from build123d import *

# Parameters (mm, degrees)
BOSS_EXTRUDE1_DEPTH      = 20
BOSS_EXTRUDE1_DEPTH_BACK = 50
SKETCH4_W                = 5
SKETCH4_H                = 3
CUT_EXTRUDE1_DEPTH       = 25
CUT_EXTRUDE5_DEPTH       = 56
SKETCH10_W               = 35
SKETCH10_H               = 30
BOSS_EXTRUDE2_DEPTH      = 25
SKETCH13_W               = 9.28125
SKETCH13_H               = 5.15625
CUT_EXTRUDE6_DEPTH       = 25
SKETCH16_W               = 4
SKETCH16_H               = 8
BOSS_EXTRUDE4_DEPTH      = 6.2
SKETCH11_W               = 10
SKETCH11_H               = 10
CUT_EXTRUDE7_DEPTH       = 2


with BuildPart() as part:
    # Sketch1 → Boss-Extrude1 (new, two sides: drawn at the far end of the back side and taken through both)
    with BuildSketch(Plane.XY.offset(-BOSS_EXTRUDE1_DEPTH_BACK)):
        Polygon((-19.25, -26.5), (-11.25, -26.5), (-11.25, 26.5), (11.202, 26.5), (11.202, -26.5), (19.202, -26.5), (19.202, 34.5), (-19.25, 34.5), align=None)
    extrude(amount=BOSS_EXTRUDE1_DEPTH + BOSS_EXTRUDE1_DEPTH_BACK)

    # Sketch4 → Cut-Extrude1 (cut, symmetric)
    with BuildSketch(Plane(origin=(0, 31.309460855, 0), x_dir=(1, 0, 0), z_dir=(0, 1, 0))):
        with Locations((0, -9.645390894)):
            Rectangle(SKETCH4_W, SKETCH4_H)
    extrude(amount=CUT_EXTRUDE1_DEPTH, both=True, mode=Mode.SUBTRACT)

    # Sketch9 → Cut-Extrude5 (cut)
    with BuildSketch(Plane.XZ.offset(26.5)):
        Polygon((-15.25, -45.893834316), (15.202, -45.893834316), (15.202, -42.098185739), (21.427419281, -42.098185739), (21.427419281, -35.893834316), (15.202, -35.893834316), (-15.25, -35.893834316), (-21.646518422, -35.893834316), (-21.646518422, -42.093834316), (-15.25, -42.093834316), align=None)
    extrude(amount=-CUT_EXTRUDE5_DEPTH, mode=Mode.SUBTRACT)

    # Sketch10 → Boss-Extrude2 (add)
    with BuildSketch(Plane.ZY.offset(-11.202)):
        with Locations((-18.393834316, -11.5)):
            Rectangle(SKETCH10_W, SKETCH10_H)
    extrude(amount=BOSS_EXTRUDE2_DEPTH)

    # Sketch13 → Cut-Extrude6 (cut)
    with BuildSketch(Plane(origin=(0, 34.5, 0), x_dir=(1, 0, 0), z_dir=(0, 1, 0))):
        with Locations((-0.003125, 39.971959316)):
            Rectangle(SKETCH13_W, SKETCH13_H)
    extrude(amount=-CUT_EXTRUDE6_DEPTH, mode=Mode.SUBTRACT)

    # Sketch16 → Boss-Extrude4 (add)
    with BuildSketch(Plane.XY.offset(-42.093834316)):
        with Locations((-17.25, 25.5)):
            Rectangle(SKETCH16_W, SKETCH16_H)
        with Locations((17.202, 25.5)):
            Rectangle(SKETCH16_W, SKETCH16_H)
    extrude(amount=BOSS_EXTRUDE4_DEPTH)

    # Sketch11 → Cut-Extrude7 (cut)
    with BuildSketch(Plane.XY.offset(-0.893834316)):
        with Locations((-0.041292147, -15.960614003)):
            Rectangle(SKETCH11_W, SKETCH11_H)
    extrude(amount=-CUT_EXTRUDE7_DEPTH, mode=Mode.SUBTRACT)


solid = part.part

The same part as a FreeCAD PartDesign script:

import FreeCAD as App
import Part
import Sketcher

doc = App.newDocument("Part")
body = doc.addObject("PartDesign::Body", "Body")

# Sketch on XY plane
sketch1 = body.newObject("Sketcher::SketchObject", "Sketch")
sketch1.AttachmentSupport = (doc.getObject("XY_Plane"), [""])
sketch1.MapMode = "FlatFace"
sketch1.addGeometry([
    Part.LineSegment(App.Vector(-19.25, -26.5, 0), App.Vector(-11.25, -26.5, 0)),  # 0
    Part.LineSegment(App.Vector(-11.25, -26.5, 0), App.Vector(-11.25, 26.5, 0)),  # 1
    Part.LineSegment(App.Vector(-11.25, 26.5, 0), App.Vector(11.202, 26.5, 0)),  # 2
    Part.LineSegment(App.Vector(11.202, 26.5, 0), App.Vector(11.202, -26.5, 0)),  # 3
    Part.LineSegment(App.Vector(11.202, -26.5, 0), App.Vector(19.202, -26.5, 0)),  # 4
    Part.LineSegment(App.Vector(19.202, -26.5, 0), App.Vector(19.202, 34.5, 0)),  # 5
    Part.LineSegment(App.Vector(19.202, 34.5, 0), App.Vector(-19.25, 34.5, 0)),  # 6
    Part.LineSegment(App.Vector(-19.25, 34.5, 0), App.Vector(-19.25, -26.5, 0)),  # 7
], False)
sketch1.addConstraint([
    Sketcher.Constraint("Coincident", 0, 2, 1, 1),
    Sketcher.Constraint("Coincident", 1, 2, 2, 1),
    Sketcher.Constraint("Coincident", 2, 2, 3, 1),
    Sketcher.Constraint("Coincident", 3, 2, 4, 1),
    Sketcher.Constraint("Coincident", 4, 2, 5, 1),
    Sketcher.Constraint("Coincident", 5, 2, 6, 1),
    Sketcher.Constraint("Coincident", 6, 2, 7, 1),
    Sketcher.Constraint("Coincident", 7, 2, 0, 1),
    Sketcher.Constraint("Horizontal", 0),
    Sketcher.Constraint("Vertical", 1),
    Sketcher.Constraint("Horizontal", 2),
    Sketcher.Constraint("Vertical", 3),
    Sketcher.Constraint("Horizontal", 4),
    Sketcher.Constraint("Vertical", 5),
    Sketcher.Constraint("Horizontal", 6),
    Sketcher.Constraint("Vertical", 7),
    Sketcher.Constraint("Horizontal", 0, 2, 3, 2),
    Sketcher.Constraint("Equal", 0, 4),
    Sketcher.Constraint("DistanceX", 0, 1, 0, 2, 8.0),
    Sketcher.Constraint("DistanceY", 1, 1, 1, 2, 53.0),
    Sketcher.Constraint("DistanceY", 5, 1, 5, 2, 61.0),
    Sketcher.Constraint("DistanceY", 0, 2, -1, 1, 26.5),
    Sketcher.Constraint("DistanceX", 2, 1, 2, 2, 22.452),
    Sketcher.Constraint("DistanceX", 0, 2, -1, 1, 11.25),
])
pad1 = body.newObject("PartDesign::Pad", "Pad")
pad1.Profile = sketch1
pad1.Type = "TwoLengths"
pad1.Length = 20
pad1.Length2 = 50

# Sketch on XZ plane
sketch2 = body.newObject("Sketcher::SketchObject", "Sketch001")
sketch2.AttachmentSupport = (doc.getObject("XZ_Plane"), [""])
sketch2.MapMode = "FlatFace"
sketch2.AttachmentOffset = App.Placement(App.Vector(0, 0, -31.309461), App.Rotation())
sketch2.addGeometry([
    Part.LineSegment(App.Vector(-2.5, 8.145391, 0), App.Vector(-2.5, 11.145391, 0)),
    Part.LineSegment(App.Vector(-2.5, 11.145391, 0), App.Vector(2.5, 11.145391, 0)),
    Part.LineSegment(App.Vector(2.5, 11.145391, 0), App.Vector(2.5, 8.145391, 0)),
    Part.LineSegment(App.Vector(2.5, 8.145391, 0), App.Vector(-2.5, 8.145391, 0)),
], False)
sketch2.addConstraint([
    Sketcher.Constraint("Coincident", 0, 2, 1, 1),
    Sketcher.Constraint("Coincident", 1, 2, 2, 1),
    Sketcher.Constraint("Coincident", 2, 2, 3, 1),
    Sketcher.Constraint("Coincident", 3, 2, 0, 1),
    Sketcher.Constraint("Vertical", 0),
    Sketcher.Constraint("Horizontal", 1),
    Sketcher.Constraint("Vertical", 2),
    Sketcher.Constraint("Horizontal", 3),
    Sketcher.Constraint("DistanceX", 1, 1, 1, 2, 5.0),
    Sketcher.Constraint("DistanceY", 0, 1, 0, 2, 3.0),
    Sketcher.Constraint("DistanceX", 0, 2, -1, 1, 2.5),
    Sketcher.Constraint("DistanceY", -1, 1, 0, 2, 11.145391),
])
pocket1 = body.newObject("PartDesign::Pocket", "Pocket")
pocket1.Profile = sketch2
pocket1.Length = 50
pocket1.Midplane = True

# Sketch on XZ plane
sketch3 = body.newObject("Sketcher::SketchObject", "Sketch002")
sketch3.AttachmentSupport = (doc.getObject("XZ_Plane"), [""])
sketch3.MapMode = "FlatFace"
sketch3.AttachmentOffset = App.Placement(App.Vector(0, 0, 26.5), App.Rotation())
sketch3.addGeometry([
    Part.LineSegment(App.Vector(-15.25, -45.893834, 0), App.Vector(15.202, -45.893834, 0)),  # 0
    Part.LineSegment(App.Vector(15.202, -45.893834, 0), App.Vector(15.202, -42.098186, 0)),  # 1
    Part.LineSegment(App.Vector(15.202, -42.098186, 0), App.Vector(21.427419, -42.098186, 0)),  # 2
    Part.LineSegment(App.Vector(21.427419, -42.098186, 0), App.Vector(21.427419, -35.893834, 0)),  # 3
    Part.LineSegment(App.Vector(21.427419, -35.893834, 0), App.Vector(-21.646518, -35.893834, 0)),  # 4
    Part.LineSegment(App.Vector(-21.646518, -35.893834, 0), App.Vector(-21.646518, -42.093834, 0)),  # 5
    Part.LineSegment(App.Vector(-21.646518, -42.093834, 0), App.Vector(-15.25, -42.093834, 0)),  # 6
    Part.LineSegment(App.Vector(-15.25, -42.093834, 0), App.Vector(-15.25, -45.893834, 0)),  # 7
], False)
sketch3.addConstraint([
    Sketcher.Constraint("Coincident", 0, 2, 1, 1),
    Sketcher.Constraint("Coincident", 1, 2, 2, 1),
    Sketcher.Constraint("Coincident", 2, 2, 3, 1),
    Sketcher.Constraint("Coincident", 3, 2, 4, 1),
    Sketcher.Constraint("Coincident", 4, 2, 5, 1),
    Sketcher.Constraint("Coincident", 5, 2, 6, 1),
    Sketcher.Constraint("Coincident", 6, 2, 7, 1),
    Sketcher.Constraint("Coincident", 7, 2, 0, 1),
    Sketcher.Constraint("Horizontal", 0),
    Sketcher.Constraint("Vertical", 1),
    Sketcher.Constraint("Horizontal", 2),
    Sketcher.Constraint("Vertical", 3),
    Sketcher.Constraint("Horizontal", 4),
    Sketcher.Constraint("Vertical", 5),
    Sketcher.Constraint("Horizontal", 6),
    Sketcher.Constraint("Vertical", 7),
    Sketcher.Constraint("DistanceY", 5, 2, 5, 1, 6.2),
    Sketcher.Constraint("DistanceY", 7, 2, 7, 1, 3.8),
    Sketcher.Constraint("DistanceX", 0, 1, 0, 2, 30.452),
    Sketcher.Constraint("DistanceX", 6, 2, -1, 1, 15.25),
    Sketcher.Constraint("DistanceX", 2, 1, 2, 2, 6.225419),
    Sketcher.Constraint("DistanceX", 6, 1, 6, 2, 6.396518),
    Sketcher.Constraint("DistanceY", 1, 1, 1, 2, 3.795649),
    Sketcher.Constraint("DistanceY", 0, 2, -1, 1, 45.893834),
])
pocket2 = body.newObject("PartDesign::Pocket", "Pocket001")
pocket2.Profile = sketch3
pocket2.Length = 56

# Sketch on YZ plane
sketch4 = body.newObject("Sketcher::SketchObject", "Sketch003")
sketch4.AttachmentSupport = (doc.getObject("YZ_Plane"), [""])
sketch4.MapMode = "FlatFace"
sketch4.AttachmentOffset = App.Placement(App.Vector(0, 0, 11.202), App.Rotation())
sketch4.addGeometry([
    Part.LineSegment(App.Vector(3.5, -35.893834, 0), App.Vector(-26.5, -35.893834, 0)),
    Part.LineSegment(App.Vector(-26.5, -35.893834, 0), App.Vector(-26.5, -0.893834, 0)),
    Part.LineSegment(App.Vector(-26.5, -0.893834, 0), App.Vector(3.5, -0.893834, 0)),
    Part.LineSegment(App.Vector(3.5, -0.893834, 0), App.Vector(3.5, -35.893834, 0)),
], False)
sketch4.addConstraint([
    Sketcher.Constraint("Coincident", 0, 2, 1, 1),
    Sketcher.Constraint("Coincident", 1, 2, 2, 1),
    Sketcher.Constraint("Coincident", 2, 2, 3, 1),
    Sketcher.Constraint("Coincident", 3, 2, 0, 1),
    Sketcher.Constraint("Horizontal", 0),
    Sketcher.Constraint("Vertical", 1),
    Sketcher.Constraint("Horizontal", 2),
    Sketcher.Constraint("Vertical", 3),
    Sketcher.Constraint("DistanceX", 0, 2, 0, 1, 30.0),
    Sketcher.Constraint("DistanceY", 1, 1, 1, 2, 35.0),
    Sketcher.Constraint("DistanceX", 0, 2, -1, 1, 26.5),
    Sketcher.Constraint("DistanceY", 0, 2, -1, 1, 35.893834),
])
pad2 = body.newObject("PartDesign::Pad", "Pad001")
pad2.Profile = sketch4
pad2.Length = 25
pad2.Reversed = True

# Sketch on XZ plane
sketch5 = body.newObject("Sketcher::SketchObject", "Sketch004")
sketch5.AttachmentSupport = (doc.getObject("XZ_Plane"), [""])
sketch5.MapMode = "FlatFace"
sketch5.AttachmentOffset = App.Placement(App.Vector(0, 0, -34.5), App.Rotation())
sketch5.addGeometry([
    Part.LineSegment(App.Vector(-4.64375, -42.550084, 0), App.Vector(-4.64375, -37.393834, 0)),
    Part.LineSegment(App.Vector(-4.64375, -37.393834, 0), App.Vector(4.6375, -37.393834, 0)),
    Part.LineSegment(App.Vector(4.6375, -37.393834, 0), App.Vector(4.6375, -42.550084, 0)),
    Part.LineSegment(App.Vector(4.6375, -42.550084, 0), App.Vector(-4.64375, -42.550084, 0)),
], False)
sketch5.addConstraint([
    Sketcher.Constraint("Coincident", 0, 2, 1, 1),
    Sketcher.Constraint("Coincident", 1, 2, 2, 1),
    Sketcher.Constraint("Coincident", 2, 2, 3, 1),
    Sketcher.Constraint("Coincident", 3, 2, 0, 1),
    Sketcher.Constraint("Vertical", 0),
    Sketcher.Constraint("Horizontal", 1),
    Sketcher.Constraint("Vertical", 2),
    Sketcher.Constraint("Horizontal", 3),
    Sketcher.Constraint("DistanceX", 1, 1, 1, 2, 9.28125),
    Sketcher.Constraint("DistanceY", 0, 1, 0, 2, 5.15625),
    Sketcher.Constraint("DistanceX", -1, 1, 1, 2, 4.6375),
    Sketcher.Constraint("DistanceY", 0, 2, -1, 1, 37.393834),
])
pocket3 = body.newObject("PartDesign::Pocket", "Pocket002")
pocket3.Profile = sketch5
pocket3.Length = 25
pocket3.Reversed = True

# Sketch on XY plane
sketch6 = body.newObject("Sketcher::SketchObject", "Sketch005")
sketch6.AttachmentSupport = (doc.getObject("XY_Plane"), [""])
sketch6.MapMode = "FlatFace"
sketch6.AttachmentOffset = App.Placement(App.Vector(0, 0, -42.093834), App.Rotation())
sketch6.addGeometry([
    Part.LineSegment(App.Vector(-19.25, 29.5, 0), App.Vector(-19.25, 21.5, 0)),  # 0
    Part.LineSegment(App.Vector(-19.25, 21.5, 0), App.Vector(-15.25, 21.5, 0)),  # 1
    Part.LineSegment(App.Vector(-15.25, 21.5, 0), App.Vector(-15.25, 29.5, 0)),  # 2
    Part.LineSegment(App.Vector(-15.25, 29.5, 0), App.Vector(-19.25, 29.5, 0)),  # 3
    Part.LineSegment(App.Vector(15.202, 29.5, 0), App.Vector(15.202, 21.5, 0)),  # 4
    Part.LineSegment(App.Vector(15.202, 21.5, 0), App.Vector(19.202, 21.5, 0)),  # 5
    Part.LineSegment(App.Vector(19.202, 21.5, 0), App.Vector(19.202, 29.5, 0)),  # 6
    Part.LineSegment(App.Vector(19.202, 29.5, 0), App.Vector(15.202, 29.5, 0)),  # 7
], False)
sketch6.addConstraint([
    Sketcher.Constraint("Coincident", 0, 2, 1, 1),
    Sketcher.Constraint("Coincident", 1, 2, 2, 1),
    Sketcher.Constraint("Coincident", 2, 2, 3, 1),
    Sketcher.Constraint("Coincident", 3, 2, 0, 1),
    Sketcher.Constraint("Coincident", 4, 2, 5, 1),
    Sketcher.Constraint("Coincident", 5, 2, 6, 1),
    Sketcher.Constraint("Coincident", 6, 2, 7, 1),
    Sketcher.Constraint("Coincident", 7, 2, 4, 1),
    Sketcher.Constraint("Vertical", 0),
    Sketcher.Constraint("Horizontal", 1),
    Sketcher.Constraint("Vertical", 2),
    Sketcher.Constraint("Horizontal", 3),
    Sketcher.Constraint("Vertical", 4),
    Sketcher.Constraint("Horizontal", 5),
    Sketcher.Constraint("Vertical", 6),
    Sketcher.Constraint("Horizontal", 7),
    Sketcher.Constraint("Horizontal", 1, 2, 4, 2),
    Sketcher.Constraint("Horizontal", 3, 2, 6, 2),
    Sketcher.Constraint("Equal", 3, 5),
    Sketcher.Constraint("DistanceX", 1, 1, 1, 2, 4.0),
    Sketcher.Constraint("DistanceY", 0, 2, 0, 1, 8.0),
    Sketcher.Constraint("DistanceY", -1, 1, 0, 2, 21.5),
    Sketcher.Constraint("DistanceX", 0, 2, -1, 1, 19.25),
    Sketcher.Constraint("DistanceX", -1, 1, 4, 2, 15.202),
])
pad3 = body.newObject("PartDesign::Pad", "Pad002")
pad3.Profile = sketch6
pad3.Length = 6.2

# Sketch on XY plane
sketch7 = body.newObject("Sketcher::SketchObject", "Sketch006")
sketch7.AttachmentSupport = (doc.getObject("XY_Plane"), [""])
sketch7.MapMode = "FlatFace"
sketch7.AttachmentOffset = App.Placement(App.Vector(0, 0, -0.893834), App.Rotation())
sketch7.addGeometry([
    Part.LineSegment(App.Vector(-5.041292, -10.960614, 0), App.Vector(-5.041292, -20.960614, 0)),
    Part.LineSegment(App.Vector(-5.041292, -20.960614, 0), App.Vector(4.958708, -20.960614, 0)),
    Part.LineSegment(App.Vector(4.958708, -20.960614, 0), App.Vector(4.958708, -10.960614, 0)),
    Part.LineSegment(App.Vector(4.958708, -10.960614, 0), App.Vector(-5.041292, -10.960614, 0)),
], False)
sketch7.addConstraint([
    Sketcher.Constraint("Coincident", 0, 2, 1, 1),
    Sketcher.Constraint("Coincident", 1, 2, 2, 1),
    Sketcher.Constraint("Coincident", 2, 2, 3, 1),
    Sketcher.Constraint("Coincident", 3, 2, 0, 1),
    Sketcher.Constraint("Vertical", 0),
    Sketcher.Constraint("Horizontal", 1),
    Sketcher.Constraint("Vertical", 2),
    Sketcher.Constraint("Horizontal", 3),
    Sketcher.Constraint("Equal", 3, 0),
    Sketcher.Constraint("DistanceX", 1, 1, 1, 2, 10.0),
    Sketcher.Constraint("DistanceX", 0, 2, -1, 1, 5.041292),
    Sketcher.Constraint("DistanceY", 0, 2, -1, 1, 20.960614),
])
pocket4 = body.newObject("PartDesign::Pocket", "Pocket003")
pocket4.Profile = sketch7
pocket4.Length = 2

doc.recompute()
